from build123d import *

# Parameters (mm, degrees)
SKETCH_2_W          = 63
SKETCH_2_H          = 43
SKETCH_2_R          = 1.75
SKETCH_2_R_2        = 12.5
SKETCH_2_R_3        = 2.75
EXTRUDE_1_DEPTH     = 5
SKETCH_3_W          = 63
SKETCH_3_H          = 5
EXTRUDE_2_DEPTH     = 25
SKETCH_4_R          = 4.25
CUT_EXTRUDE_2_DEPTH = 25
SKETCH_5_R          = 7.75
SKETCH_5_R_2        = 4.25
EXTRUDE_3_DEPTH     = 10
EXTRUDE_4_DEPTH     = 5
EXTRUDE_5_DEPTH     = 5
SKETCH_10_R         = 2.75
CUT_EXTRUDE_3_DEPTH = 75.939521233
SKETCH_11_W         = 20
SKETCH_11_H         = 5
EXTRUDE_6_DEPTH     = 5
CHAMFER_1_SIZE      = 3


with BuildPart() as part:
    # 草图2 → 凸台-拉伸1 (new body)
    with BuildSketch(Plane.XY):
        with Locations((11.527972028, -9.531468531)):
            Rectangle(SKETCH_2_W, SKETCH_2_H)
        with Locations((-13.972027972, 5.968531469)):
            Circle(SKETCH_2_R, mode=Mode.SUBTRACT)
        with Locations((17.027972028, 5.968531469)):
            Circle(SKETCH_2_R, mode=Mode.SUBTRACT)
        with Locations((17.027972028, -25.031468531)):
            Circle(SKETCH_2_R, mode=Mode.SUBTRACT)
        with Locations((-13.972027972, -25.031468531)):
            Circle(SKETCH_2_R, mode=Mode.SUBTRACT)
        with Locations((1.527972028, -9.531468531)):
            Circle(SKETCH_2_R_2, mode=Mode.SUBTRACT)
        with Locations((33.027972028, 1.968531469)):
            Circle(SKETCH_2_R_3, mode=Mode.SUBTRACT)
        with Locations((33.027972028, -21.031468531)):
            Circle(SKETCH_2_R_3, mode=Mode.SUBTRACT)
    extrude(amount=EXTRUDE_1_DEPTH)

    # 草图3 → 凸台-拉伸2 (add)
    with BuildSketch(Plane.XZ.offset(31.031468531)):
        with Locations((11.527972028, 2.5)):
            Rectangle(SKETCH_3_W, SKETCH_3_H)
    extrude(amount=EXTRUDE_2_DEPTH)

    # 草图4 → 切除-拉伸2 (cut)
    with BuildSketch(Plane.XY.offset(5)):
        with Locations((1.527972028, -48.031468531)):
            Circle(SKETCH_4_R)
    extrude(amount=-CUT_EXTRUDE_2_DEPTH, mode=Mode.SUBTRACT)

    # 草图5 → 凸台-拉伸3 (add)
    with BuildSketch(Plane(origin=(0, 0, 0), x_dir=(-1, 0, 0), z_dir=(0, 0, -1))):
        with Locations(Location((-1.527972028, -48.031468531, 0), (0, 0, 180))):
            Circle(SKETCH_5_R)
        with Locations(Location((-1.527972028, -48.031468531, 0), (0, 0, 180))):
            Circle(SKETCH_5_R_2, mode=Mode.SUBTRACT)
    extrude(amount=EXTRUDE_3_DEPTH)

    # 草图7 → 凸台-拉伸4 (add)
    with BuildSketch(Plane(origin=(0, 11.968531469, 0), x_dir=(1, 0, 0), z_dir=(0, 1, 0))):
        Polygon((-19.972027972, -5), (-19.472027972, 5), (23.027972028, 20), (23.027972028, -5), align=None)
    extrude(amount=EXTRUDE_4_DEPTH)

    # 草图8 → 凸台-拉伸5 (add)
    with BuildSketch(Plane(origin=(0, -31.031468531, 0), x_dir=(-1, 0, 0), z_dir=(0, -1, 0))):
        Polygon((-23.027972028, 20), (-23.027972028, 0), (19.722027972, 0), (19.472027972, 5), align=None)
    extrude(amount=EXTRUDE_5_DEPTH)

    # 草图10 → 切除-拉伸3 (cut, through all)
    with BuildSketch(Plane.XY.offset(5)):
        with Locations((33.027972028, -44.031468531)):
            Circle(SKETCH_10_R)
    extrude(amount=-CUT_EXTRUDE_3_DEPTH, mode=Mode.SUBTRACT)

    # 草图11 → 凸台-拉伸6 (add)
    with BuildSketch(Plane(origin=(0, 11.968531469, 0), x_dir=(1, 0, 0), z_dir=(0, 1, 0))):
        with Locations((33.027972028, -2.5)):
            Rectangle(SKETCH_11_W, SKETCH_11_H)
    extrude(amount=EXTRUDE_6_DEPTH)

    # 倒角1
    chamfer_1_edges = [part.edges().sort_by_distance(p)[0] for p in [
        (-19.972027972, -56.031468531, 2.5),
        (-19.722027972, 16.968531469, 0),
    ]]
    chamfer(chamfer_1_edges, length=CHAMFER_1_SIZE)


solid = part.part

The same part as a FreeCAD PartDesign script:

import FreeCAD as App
import Part
import Sketcher

V = App.Vector


def edges_at(feature, points):
    """Names of the edges that pass closest to the given points."""
    edges = feature.Shape.Edges
    near = lambda p: min(range(len(edges)), key=lambda i: edges[i].distToShape(Part.Vertex(*p))[0])
    return sorted({f"Edge{near(p) + 1}" for p in points})

doc = App.newDocument("Part")
body = doc.addObject("PartDesign::Body", "Body")

sketch1 = body.newObject("Sketcher::SketchObject", "Sketch")
sketch1.AttachmentSupport = (doc.getObject("XY_Plane"), [""])
sketch1.MapMode = "FlatFace"
sketch1.addGeometry([
    Part.LineSegment(V(-20, 12, 0), V(-20, -31, 0)),
    Part.LineSegment(V(-20, -31, 0), V(43, -31, 0)),
    Part.LineSegment(V(43, -31, 0), V(43, 12, 0)),
    Part.LineSegment(V(43, 12, 0), V(-20, 12, 0)),
    Part.Circle(V(-14, -25, 0), V(0, 0, 1), 1.8),
    Part.Circle(V(17, -25, 0), V(0, 0, 1), 1.8),
    Part.Circle(V(33, -21, 0), V(0, 0, 1), 2.8),
    Part.Circle(V(1.5, -9.5, 0), V(0, 0, 1), 12.5),
    Part.Circle(V(-14, 6, 0), V(0, 0, 1), 1.8),
    Part.Circle(V(17, 6, 0), V(0, 0, 1), 1.8),
    Part.Circle(V(33, 2, 0), V(0, 0, 1), 2.8),
], False)
sketch1.addConstraint([
    Sketcher.Constraint("Coincident", 0, 2, 1, 1),
    Sketcher.Constraint("Coincident", 1, 2, 2, 1),
    Sketcher.Constraint("Coincident", 2, 2, 3, 1),
    Sketcher.Constraint("Coincident", 3, 2, 0, 1),
    Sketcher.Constraint("Vertical", 0),
    Sketcher.Constraint("Horizontal", 1),
    Sketcher.Constraint("Vertical", 2),
    Sketcher.Constraint("Horizontal", 3),
    Sketcher.Constraint("Equal", 4, 5),
    Sketcher.Constraint("Equal", 5, 8),
    Sketcher.Constraint("Equal", 8, 9),
    Sketcher.Constraint("Equal", 6, 10),
    Sketcher.Constraint("Horizontal", 4, 3, 5, 3),
    Sketcher.Constraint("Horizontal", 8, 3, 9, 3),
    Sketcher.Constraint("Vertical", 4, 3, 8, 3),
    Sketcher.Constraint("Vertical", 5, 3, 9, 3),
    Sketcher.Constraint("Vertical", 6, 3, 10, 3),
    Sketcher.Constraint("Diameter", 7, 25.0),
    Sketcher.Constraint("Diameter", 4, 3.5),
    Sketcher.Constraint("Diameter", 6, 5.5),
    Sketcher.Constraint("DistanceX", 1, 1, 1, 2, 63.0),
    Sketcher.Constraint("DistanceY", 0, 2, 0, 1, 43.0),
    Sketcher.Constraint("DistanceX", 4, 3, 5, 3, 31.0),
    Sketcher.Constraint("DistanceX", 5, 3, 6, 3, 16.0),
    Sketcher.Constraint("DistanceY", 5, 3, 6, 3, 4.0),
    Sketcher.Constraint("DistanceY", 4, 3, 8, 3, 31.0),
    Sketcher.Constraint("DistanceY", 10, 3, 9, 3, 4.0),
    Sketcher.Constraint("DistanceX", 0, 2, 4, 3, 6.0),
    Sketcher.Constraint("DistanceY", 0, 2, 4, 3, 6.0),
    Sketcher.Constraint("DistanceX", 4, 3, 7, 3, 15.5),
    Sketcher.Constraint("DistanceY", 4, 3, 7, 3, 15.5),
    Sketcher.Constraint("DistanceY", 4, 3, -1, 1, 25.031469),
    Sketcher.Constraint("DistanceX", 4, 3, -1, 1, 13.972028),
])
pad1 = body.newObject("PartDesign::Pad", "Pad")
pad1.Profile = sketch1
pad1.Length = 5

sketch2 = body.newObject("Sketcher::SketchObject", "Sketch001")
sketch2.AttachmentSupport = (doc.getObject("XZ_Plane"), [""])
sketch2.MapMode = "FlatFace"
sketch2.AttachmentOffset = App.Placement(V(0, 0, 31.031469), App.Rotation())
sketch2.addGeometry([
    Part.LineSegment(V(-20, 5, 0), V(-20, 0, 0)),
    Part.LineSegment(V(-20, 0, 0), V(43, 0, 0)),
    Part.LineSegment(V(43, 0, 0), V(43, 5, 0)),
    Part.LineSegment(V(43, 5, 0), V(-20, 5, 0)),
], False)
sketch2.addConstraint([
    Sketcher.Constraint("Coincident", 0, 2, 1, 1),
    Sketcher.Constraint("Coincident", 1, 2, 2, 1),
    Sketcher.Constraint("Coincident", 2, 2, 3, 1),
    Sketcher.Constraint("Coincident", 3, 2, 0, 1),
    Sketcher.Constraint("Vertical", 0),
    Sketcher.Constraint("Horizontal", 1),
    Sketcher.Constraint("Vertical", 2),
    Sketcher.Constraint("Horizontal", 3),
    Sketcher.Constraint("PointOnObject", 0, 2, -1),
    Sketcher.Constraint("DistanceX", 1, 1, 1, 2, 63.0),
    Sketcher.Constraint("DistanceY", 0, 2, 0, 1, 5.0),
    Sketcher.Constraint("DistanceX", 0, 2, -1, 1, 19.972028),
])
pad2 = body.newObject("PartDesign::Pad", "Pad001")
pad2.Profile = sketch2
pad2.Length = 25

sketch3 = body.newObject("Sketcher::SketchObject", "Sketch002")
sketch3.AttachmentSupport = (doc.getObject("XY_Plane"), [""])
sketch3.MapMode = "FlatFace"
sketch3.AttachmentOffset = App.Placement(V(0, 0, 5), App.Rotation())
sketch3.addGeometry(Part.Circle(V(1.5, -48, 0), V(0, 0, 1), 4.2), False)
sketch3.addConstraint([
    Sketcher.Constraint("Diameter", 0, 8.5),
    Sketcher.Constraint("DistanceY", 0, 3, -1, 1, 48.031469),
    Sketcher.Constraint("DistanceX", -1, 1, 0, 3, 1.527972),
])
pocket1 = body.newObject("PartDesign::Pocket", "Pocket")
pocket1.Profile = sketch3
pocket1.Length = 25

sketch4 = body.newObject("Sketcher::SketchObject", "Sketch003")
sketch4.AttachmentSupport = (doc.getObject("XY_Plane"), [""])
sketch4.MapMode = "FlatFace"
sketch4.addGeometry([
    Part.Circle(V(1.5, -48, 0), V(0, 0, 1), 7.8),
    Part.Circle(V(1.5, -48, 0), V(0, 0, 1), 4.2),
], False)
sketch4.addConstraint([
    Sketcher.Constraint("Coincident", 1, 3, 0, 3),
    Sketcher.Constraint("Diameter", 0, 15.5),
    Sketcher.Constraint("Diameter", 1, 8.5),
    Sketcher.Constraint("DistanceY", 0, 3, -1, 1, 48.031469),
    Sketcher.Constraint("DistanceX", -1, 1, 0, 3, 1.527972),
])
pad3 = body.newObject("PartDesign::Pad", "Pad002")
pad3.Profile = sketch4
pad3.Length = 10
pad3.Reversed = True

sketch5 = body.newObject("Sketcher::SketchObject", "Sketch004")
sketch5.AttachmentSupport = (doc.getObject("XZ_Plane"), [""])
sketch5.MapMode = "FlatFace"
sketch5.AttachmentOffset = App.Placement(V(0, 0, -11.968531), App.Rotation())
sketch5.addGeometry([
    Part.LineSegment(V(-19, -5, 0), V(-20, 5, 0)),
    Part.LineSegment(V(-20, 5, 0), V(23, 5, 0)),
    Part.LineSegment(V(23, 5, 0), V(23, -20, 0)),
    Part.LineSegment(V(23, -20, 0), V(-19, -5, 0)),
], False)
sketch5.addConstraint([
    Sketcher.Constraint("Coincident", 0, 2, 1, 1),
    Sketcher.Constraint("Coincident", 1, 2, 2, 1),
    Sketcher.Constraint("Coincident", 2, 2, 3, 1),
    Sketcher.Constraint("Coincident", 3, 2, 0, 1),
    Sketcher.Constraint("Horizontal", 1),
    Sketcher.Constraint("Vertical", 2),
    Sketcher.Constraint("DistanceX", 1, 1, 1, 2, 43.0),
    Sketcher.Constraint("DistanceY", 2, 2, 2, 1, 25.0),
    Sketcher.Constraint("DistanceY", -1, 1, 0, 2, 5.0),
    Sketcher.Constraint("DistanceY", 3, 2, -1, 1, 5.0),
    Sketcher.Constraint("DistanceX", 0, 2, 3, 2, 0.5),
    Sketcher.Constraint("DistanceX", 0, 2, -1, 1, 19.972028),
])
pad4 = body.newObject("PartDesign::Pad", "Pad003")
pad4.Profile = sketch5
pad4.Length = 5
pad4.Reversed = True

sketch6 = body.newObject("Sketcher::SketchObject", "Sketch005")
sketch6.AttachmentSupport = (doc.getObject("XZ_Plane"), [""])
sketch6.MapMode = "FlatFace"
sketch6.AttachmentOffset = App.Placement(V(0, 0, 31.031469), App.Rotation())
sketch6.addGeometry([
    Part.LineSegment(V(23, -20, 0), V(23, 0, 0)),
    Part.LineSegment(V(23, 0, 0), V(-20, 0, 0)),
    Part.LineSegment(V(-20, 0, 0), V(-19, -5, 0)),
    Part.LineSegment(V(-19, -5, 0), V(23, -20, 0)),
], False)
sketch6.addConstraint([
    Sketcher.Constraint("Coincident", 0, 2, 1, 1),
    Sketcher.Constraint("Coincident", 1, 2, 2, 1),
    Sketcher.Constraint("Coincident", 2, 2, 3, 1),
    Sketcher.Constraint("Coincident", 3, 2, 0, 1),
    Sketcher.Constraint("Vertical", 0),
    Sketcher.Constraint("Horizontal", 1),
    Sketcher.Constraint("PointOnObject", 0, 2, -1),
    Sketcher.Constraint("DistanceY", 0, 1, 0, 2, 20.0),
    Sketcher.Constraint("DistanceY", 2, 2, -1, 1, 5.0),
    Sketcher.Constraint("DistanceX", 1, 2, 1, 1, 42.75),
    Sketcher.Constraint("DistanceX", 2, 2, 0, 2, 42.5),
    Sketcher.Constraint("DistanceX", -1, 1, 0, 2, 23.027972),
])
pad5 = body.newObject("PartDesign::Pad", "Pad004")
pad5.Profile = sketch6
pad5.Length = 5

sketch7 = body.newObject("Sketcher::SketchObject", "Sketch006")
sketch7.AttachmentSupport = (doc.getObject("XY_Plane"), [""])
sketch7.MapMode = "FlatFace"
sketch7.AttachmentOffset = App.Placement(V(0, 0, 5), App.Rotation())
sketch7.addGeometry(Part.Circle(V(33, -44, 0), V(0, 0, 1), 2.8), False)
sketch7.addConstraint([
    Sketcher.Constraint("Diameter", 0, 5.5),
    Sketcher.Constraint("DistanceY", 0, 3, -1, 1, 44.031469),
    Sketcher.Constraint("DistanceX", -1, 1, 0, 3, 33.027972),
])
pocket2 = body.newObject("PartDesign::Pocket", "Pocket001")
pocket2.Profile = sketch7
pocket2.Type = "ThroughAll"

sketch8 = body.newObject("Sketcher::SketchObject", "Sketch007")
sketch8.AttachmentSupport = (doc.getObject("XZ_Plane"), [""])
sketch8.MapMode = "FlatFace"
sketch8.AttachmentOffset = App.Placement(V(0, 0, -11.968531), App.Rotation())
sketch8.addGeometry([
    Part.LineSegment(V(23, 0, 0), V(23, 5, 0)),
    Part.LineSegment(V(23, 5, 0), V(43, 5, 0)),
    Part.LineSegment(V(43, 5, 0), V(43, 0, 0)),
    Part.LineSegment(V(43, 0, 0), V(23, 0, 0)),
], False)
sketch8.addConstraint([
    Sketcher.Constraint("Coincident", 0, 2, 1, 1),
    Sketcher.Constraint("Coincident", 1, 2, 2, 1),
    Sketcher.Constraint("Coincident", 2, 2, 3, 1),
    Sketcher.Constraint("Coincident", 3, 2, 0, 1),
    Sketcher.Constraint("Vertical", 0),
    Sketcher.Constraint("Horizontal", 1),
    Sketcher.Constraint("Vertical", 2),
    Sketcher.Constraint("Horizontal", 3),
    Sketcher.Constraint("PointOnObject", 2, 2, -1),
    Sketcher.Constraint("DistanceX", 1, 1, 1, 2, 20.0),
    Sketcher.Constraint("DistanceY", 0, 1, 0, 2, 5.0),
    Sketcher.Constraint("DistanceX", -1, 1, 0, 2, 23.027972),
])
pad6 = body.newObject("PartDesign::Pad", "Pad005")
pad6.Profile = sketch8
pad6.Length = 5
pad6.Reversed = True
doc.recompute()

chamfer = body.newObject("PartDesign::Chamfer", "Chamfer")
chamfer.Base = (pad6, edges_at(pad6, [(-19.972, -56.031, 2.5), (-19.722, 16.969, 0)]))
chamfer.Size = 3

doc.recompute()
